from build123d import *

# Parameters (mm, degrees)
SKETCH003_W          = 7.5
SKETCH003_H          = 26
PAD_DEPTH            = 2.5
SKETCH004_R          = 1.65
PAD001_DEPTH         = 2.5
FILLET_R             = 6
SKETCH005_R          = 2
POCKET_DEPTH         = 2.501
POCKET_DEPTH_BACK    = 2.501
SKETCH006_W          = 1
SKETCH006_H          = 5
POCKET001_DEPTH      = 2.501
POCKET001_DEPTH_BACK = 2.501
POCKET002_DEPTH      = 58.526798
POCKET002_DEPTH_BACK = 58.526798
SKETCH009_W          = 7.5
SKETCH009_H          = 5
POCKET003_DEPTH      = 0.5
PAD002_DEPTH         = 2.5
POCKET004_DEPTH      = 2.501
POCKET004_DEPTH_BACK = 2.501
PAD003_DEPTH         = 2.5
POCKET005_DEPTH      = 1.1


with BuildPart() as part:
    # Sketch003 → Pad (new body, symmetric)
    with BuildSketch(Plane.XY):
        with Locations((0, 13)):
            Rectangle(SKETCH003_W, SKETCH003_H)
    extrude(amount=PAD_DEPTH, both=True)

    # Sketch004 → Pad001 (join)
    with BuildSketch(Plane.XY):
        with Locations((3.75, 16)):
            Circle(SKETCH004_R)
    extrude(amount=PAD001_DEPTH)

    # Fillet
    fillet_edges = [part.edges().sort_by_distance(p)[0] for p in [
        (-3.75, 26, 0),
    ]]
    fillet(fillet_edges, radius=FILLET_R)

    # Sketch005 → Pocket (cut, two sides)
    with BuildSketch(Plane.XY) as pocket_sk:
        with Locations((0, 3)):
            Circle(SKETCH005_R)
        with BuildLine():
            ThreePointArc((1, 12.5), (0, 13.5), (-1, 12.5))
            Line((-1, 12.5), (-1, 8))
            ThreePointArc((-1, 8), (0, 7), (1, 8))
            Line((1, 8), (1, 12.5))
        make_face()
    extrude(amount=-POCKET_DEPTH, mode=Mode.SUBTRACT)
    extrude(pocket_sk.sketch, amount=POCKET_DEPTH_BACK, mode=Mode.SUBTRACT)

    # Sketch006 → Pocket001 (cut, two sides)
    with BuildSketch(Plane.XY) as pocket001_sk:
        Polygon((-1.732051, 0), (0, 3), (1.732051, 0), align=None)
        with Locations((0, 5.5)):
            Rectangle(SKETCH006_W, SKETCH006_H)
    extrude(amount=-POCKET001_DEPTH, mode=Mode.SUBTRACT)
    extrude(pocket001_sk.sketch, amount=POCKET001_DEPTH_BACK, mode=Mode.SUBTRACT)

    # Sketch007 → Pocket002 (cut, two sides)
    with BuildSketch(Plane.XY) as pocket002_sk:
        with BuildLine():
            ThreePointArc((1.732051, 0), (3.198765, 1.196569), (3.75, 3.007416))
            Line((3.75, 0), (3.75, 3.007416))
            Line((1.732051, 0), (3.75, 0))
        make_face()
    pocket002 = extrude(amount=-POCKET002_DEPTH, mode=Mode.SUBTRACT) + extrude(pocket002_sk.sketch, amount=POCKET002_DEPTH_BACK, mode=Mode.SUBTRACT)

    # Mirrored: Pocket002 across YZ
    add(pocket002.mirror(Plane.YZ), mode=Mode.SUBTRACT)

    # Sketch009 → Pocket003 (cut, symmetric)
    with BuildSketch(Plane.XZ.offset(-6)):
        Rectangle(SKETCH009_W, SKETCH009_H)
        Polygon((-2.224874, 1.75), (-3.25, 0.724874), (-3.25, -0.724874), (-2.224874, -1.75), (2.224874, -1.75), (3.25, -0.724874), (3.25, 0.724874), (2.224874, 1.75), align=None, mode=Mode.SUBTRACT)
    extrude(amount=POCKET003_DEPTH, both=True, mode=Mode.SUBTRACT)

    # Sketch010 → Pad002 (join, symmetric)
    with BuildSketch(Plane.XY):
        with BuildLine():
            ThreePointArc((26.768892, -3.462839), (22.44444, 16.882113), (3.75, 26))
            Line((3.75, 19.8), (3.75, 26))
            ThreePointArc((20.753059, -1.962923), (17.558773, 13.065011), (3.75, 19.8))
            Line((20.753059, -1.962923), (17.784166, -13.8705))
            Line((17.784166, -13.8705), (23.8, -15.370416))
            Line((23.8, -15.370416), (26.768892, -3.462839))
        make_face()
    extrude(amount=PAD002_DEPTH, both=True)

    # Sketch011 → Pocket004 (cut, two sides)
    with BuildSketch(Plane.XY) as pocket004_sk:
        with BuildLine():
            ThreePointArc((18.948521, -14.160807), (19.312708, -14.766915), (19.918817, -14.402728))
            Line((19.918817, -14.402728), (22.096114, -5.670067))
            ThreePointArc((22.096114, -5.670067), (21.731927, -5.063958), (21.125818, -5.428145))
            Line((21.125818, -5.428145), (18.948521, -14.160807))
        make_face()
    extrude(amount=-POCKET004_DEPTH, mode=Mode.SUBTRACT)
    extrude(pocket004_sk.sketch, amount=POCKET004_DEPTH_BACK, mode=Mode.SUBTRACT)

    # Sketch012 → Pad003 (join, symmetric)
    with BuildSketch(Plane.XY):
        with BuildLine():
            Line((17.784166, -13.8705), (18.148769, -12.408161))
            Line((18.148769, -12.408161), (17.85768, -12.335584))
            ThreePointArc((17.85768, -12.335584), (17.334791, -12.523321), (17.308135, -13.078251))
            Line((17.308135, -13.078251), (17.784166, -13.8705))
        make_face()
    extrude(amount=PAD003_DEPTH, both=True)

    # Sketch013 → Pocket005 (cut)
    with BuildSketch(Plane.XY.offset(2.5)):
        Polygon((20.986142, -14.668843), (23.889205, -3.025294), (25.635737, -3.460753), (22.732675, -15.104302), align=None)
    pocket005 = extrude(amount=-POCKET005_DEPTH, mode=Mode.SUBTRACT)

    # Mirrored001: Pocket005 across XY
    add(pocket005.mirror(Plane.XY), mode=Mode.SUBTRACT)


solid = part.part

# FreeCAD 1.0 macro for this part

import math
import FreeCAD as App
import Part
import Sketcher
Q = App.Units.Quantity


def edges_at(feature, points):
    """Names of the edges that pass closest to the given points."""
    edges = feature.Shape.Edges
    near = lambda p: min(range(len(edges)), key=lambda i: edges[i].distToShape(Part.Vertex(*p))[0])
    return sorted({f"Edge{near(p) + 1}" for p in points})

doc = App.newDocument("Part")
body = doc.addObject("PartDesign::Body", "Body")

sketch1 = body.newObject("Sketcher::SketchObject", "Sketch")
sketch1.AttachmentSupport = (doc.getObject("XY_Plane"), [""])
sketch1.MapMode = "FlatFace"
sketch1.addGeometry(Part.LineSegment(App.Vector(-4, 26, 0), App.Vector(-4, 0, 0)), False)
sketch1.addGeometry(Part.LineSegment(App.Vector(-4, 0, 0), App.Vector(4, 0, 0)), False)
sketch1.addGeometry(Part.LineSegment(App.Vector(4, 0, 0), App.Vector(4, 26, 0)), False)
sketch1.addGeometry(Part.LineSegment(App.Vector(4, 26, 0), App.Vector(-4, 26, 0)), False)
sketch1.addConstraint(Sketcher.Constraint("Coincident", 0, 2, 1, 1))
sketch1.addConstraint(Sketcher.Constraint("Coincident", 1, 2, 2, 1))
sketch1.addConstraint(Sketcher.Constraint("Coincident", 2, 2, 3, 1))
sketch1.addConstraint(Sketcher.Constraint("Coincident", 3, 2, 0, 1))
sketch1.addConstraint(Sketcher.Constraint("Vertical", 0))
sketch1.addConstraint(Sketcher.Constraint("Horizontal", 1))
sketch1.addConstraint(Sketcher.Constraint("Vertical", 2))
sketch1.addConstraint(Sketcher.Constraint("Horizontal", 3))
sketch1.addConstraint(Sketcher.Constraint("Symmetric", 0, 2, 1, 2, -1, 1))
sketch1.addConstraint(Sketcher.Constraint("DistanceY", 0, 2, 0, 1, Q("26 mm")))
sketch1.addConstraint(Sketcher.Constraint("DistanceX", 1, 1, 1, 2, Q("7.5 mm")))
pad1 = body.newObject("PartDesign::Pad", "Pad")
pad1.Profile = sketch1
pad1.Length = 5
pad1.Midplane = True

sketch2 = body.newObject("Sketcher::SketchObject", "Sketch001")
sketch2.AttachmentSupport = (doc.getObject("XY_Plane"), [""])
sketch2.MapMode = "FlatFace"
sketch2.addGeometry(Part.Circle(App.Vector(3.8, 16, 0), App.Vector(0, 0, 1), 1.6), False)
sketch2.addConstraint(Sketcher.Constraint("Diameter", 0, Q("3.3 mm")))
sketch2.addConstraint(Sketcher.Constraint("DistanceY", -1, 1, 0, 3, Q("16 mm")))
sketch2.addConstraint(Sketcher.Constraint("DistanceX", -1, 1, 0, 3, Q("3.75 mm")))
pad2 = body.newObject("PartDesign::Pad", "Pad001")
pad2.Profile = sketch2
pad2.Length = 2.5
doc.recompute()

fillet = body.newObject("PartDesign::Fillet", "Fillet")
fillet.Base = (pad2, edges_at(pad2, [(-3.75, 26, 0)]))
fillet.Radius = 6

sketch3 = body.newObject("Sketcher::SketchObject", "Sketch002")
sketch3.AttachmentSupport = (doc.getObject("XY_Plane"), [""])
sketch3.MapMode = "FlatFace"
sketch3.addGeometry(Part.Circle(App.Vector(0, 3, 0), App.Vector(0, 0, 1), 2), False)
sketch3.addGeometry(Part.ArcOfCircle(Part.Circle(App.Vector(0, 12.5, 0), App.Vector(0, 0, 1), 1), math.radians(0), math.radians(180)), False)
sketch3.addGeometry(Part.LineSegment(App.Vector(-1, 12.5, 0), App.Vector(-1, 8, 0)), False)
sketch3.addGeometry(Part.ArcOfCircle(Part.Circle(App.Vector(0, 8, 0), App.Vector(0, 0, 1), 1), math.radians(180), math.radians(360)), False)
sketch3.addGeometry(Part.LineSegment(App.Vector(1, 8, 0), App.Vector(1, 12.5, 0)), False)
sketch3.addConstraint(Sketcher.Constraint("Tangent", 1, 2, 2, 1))
sketch3.addConstraint(Sketcher.Constraint("Tangent", 2, 2, 3, 1))
sketch3.addConstraint(Sketcher.Constraint("Tangent", 3, 2, 4, 1))
sketch3.addConstraint(Sketcher.Constraint("Tangent", 4, 2, 1, 1))
sketch3.addConstraint(Sketcher.Constraint("Vertical", 2))
sketch3.addConstraint(Sketcher.Constraint("Vertical", 4))
sketch3.addConstraint(Sketcher.Constraint("PointOnObject", 0, 3, -2))
sketch3.addConstraint(Sketcher.Constraint("PointOnObject", 1, 3, -2))
sketch3.addConstraint(Sketcher.Constraint("Diameter", 0, Q("4 mm")))
sketch3.addConstraint(Sketcher.Constraint("Radius", 1, Q("1 mm")))
sketch3.addConstraint(Sketcher.Constraint("DistanceY", 2, 2, 2, 1, Q("4.5 mm")))
sketch3.addConstraint(Sketcher.Constraint("DistanceY", -1, 1, 0, 3, Q("3 mm")))
sketch3.addConstraint(Sketcher.Constraint("DistanceY", -1, 1, 3, 3, Q("8 mm")))
pocket1 = body.newObject("PartDesign::Pocket", "Pocket")
pocket1.Profile = sketch3
pocket1.Type = "ThroughAll"
pocket1.Midplane = True

sketch4 = body.newObject("Sketcher::SketchObject", "Sketch003")
sketch4.AttachmentSupport = (doc.getObject("XY_Plane"), [""])
sketch4.MapMode = "FlatFace"
sketch4.addGeometry(Part.LineSegment(App.Vector(0, 3, 0), App.Vector(-1.7, 0, 0)), False)
sketch4.addGeometry(Part.LineSegment(App.Vector(-1.7, 0, 0), App.Vector(1.7, 0, 0)), False)
sketch4.addGeometry(Part.LineSegment(App.Vector(1.7, 0, 0), App.Vector(0, 3, 0)), False)
sketch4.addGeometry(Part.LineSegment(App.Vector(-0.5, 8, 0), App.Vector(-0.5, 3, 0)), False)
sketch4.addGeometry(Part.LineSegment(App.Vector(-0.5, 3, 0), App.Vector(0, 3, 0)), False)
sketch4.addGeometry(Part.LineSegment(App.Vector(0, 3, 0), App.Vector(0.5, 3, 0)), False)
sketch4.addGeometry(Part.LineSegment(App.Vector(0.5, 3, 0), App.Vector(0.5, 8, 0)), False)
sketch4.addGeometry(Part.LineSegment(App.Vector(0.5, 8, 0), App.Vector(-0.5, 8, 0)), False)
sketch4.addConstraint(Sketcher.Constraint("Coincident", 0, 2, 1, 1))
sketch4.addConstraint(Sketcher.Constraint("Coincident", 1, 2, 2, 1))
sketch4.addConstraint(Sketcher.Constraint("Coincident", 2, 2, 0, 1))
sketch4.addConstraint(Sketcher.Constraint("Coincident", 3, 2, 4, 1))
sketch4.addConstraint(Sketcher.Constraint("Coincident", 4, 2, 5, 1))
sketch4.addConstraint(Sketcher.Constraint("Coincident", 5, 2, 6, 1))
sketch4.addConstraint(Sketcher.Constraint("Coincident", 6, 2, 7, 1))
sketch4.addConstraint(Sketcher.Constraint("Coincident", 7, 2, 3, 1))
sketch4.addConstraint(Sketcher.Constraint("Horizontal", 1))
sketch4.addConstraint(Sketcher.Constraint("Vertical", 3))
sketch4.addConstraint(Sketcher.Constraint("Horizontal", 4))
sketch4.addConstraint(Sketcher.Constraint("Horizontal", 5))
sketch4.addConstraint(Sketcher.Constraint("Vertical", 6))
sketch4.addConstraint(Sketcher.Constraint("Horizontal", 7))
sketch4.addConstraint(Sketcher.Constraint("Coincident", 4, 2, 2, 2))
sketch4.addConstraint(Sketcher.Constraint("Symmetric", 0, 2, 1, 2, -1, 1))
sketch4.addConstraint(Sketcher.Constraint("PointOnObject", 2, 2, -2))
sketch4.addConstraint(Sketcher.Constraint("Equal", 4, 5))
sketch4.addConstraint(Sketcher.Constraint("DistanceX", 7, 2, 7, 1, Q("1 mm")))
sketch4.addConstraint(Sketcher.Constraint("DistanceY", 3, 2, 3, 1, Q("5 mm")))
sketch4.addConstraint(Sketcher.Constraint("Angle", 0, Q("-120.000003 deg")))
sketch4.addConstraint(Sketcher.Constraint("DistanceY", -1, 1, 2, 2, Q("3 mm")))
pocket2 = body.newObject("PartDesign::Pocket", "Pocket001")
pocket2.Profile = sketch4
pocket2.Type = "ThroughAll"
pocket2.Midplane = True

sketch5 = body.newObject("Sketcher::SketchObject", "Sketch004")
sketch5.AttachmentSupport = (doc.getObject("XY_Plane"), [""])
sketch5.MapMode = "FlatFace"
sketch5.addGeometry(Part.ArcOfCircle(Part.Circle(App.Vector(0.5, 3, 0), App.Vector(0, 0, 1), 3.3), math.radians(-68), math.radians(0)), False)
sketch5.addGeometry(Part.LineSegment(App.Vector(1.7, 0, 0), App.Vector(3.8, 0, 0)), False)
sketch5.addGeometry(Part.LineSegment(App.Vector(3.8, 0, 0), App.Vector(3.8, 3, 0)), False)
sketch5.addConstraint(Sketcher.Constraint("Coincident", 0, 1, 1, 1))
sketch5.addConstraint(Sketcher.Constraint("Coincident", 1, 2, 2, 1))
sketch5.addConstraint(Sketcher.Constraint("Tangent", 2, 2, 0, 2))
sketch5.addConstraint(Sketcher.Constraint("Horizontal", 1))
sketch5.addConstraint(Sketcher.Constraint("Vertical", 2))
sketch5.addConstraint(Sketcher.Constraint("PointOnObject", 0, 1, -1))
sketch5.addConstraint(Sketcher.Constraint("Radius", 0, Q("3.250001 mm")))
sketch5.addConstraint(Sketcher.Constraint("DistanceX", -1, 1, 0, 3, Q("0.499999 mm")))
sketch5.addConstraint(Sketcher.Constraint("DistanceX", 1, 1, 1, 2, Q("2.017949 mm")))
pocket3 = body.newObject("PartDesign::Pocket", "Pocket002")
pocket3.Profile = sketch5
pocket3.Type = "ThroughAll"
pocket3.Midplane = True
doc.recompute()

mirrored = body.newObject("PartDesign::Mirrored", "Mirrored")
mirrored.Originals = [pocket3]
mirrored.MirrorPlane = (doc.getObject("YZ_Plane"), [""])
body.Tip = mirrored

sketch6 = body.newObject("Sketcher::SketchObject", "Sketch005")
sketch6.AttachmentSupport = (doc.getObject("XZ_Plane"), [""])
sketch6.MapMode = "FlatFace"
sketch6.AttachmentOffset = App.Placement(App.Vector(0, 0, -6), App.Rotation())
sketch6.addGeometry(Part.LineSegment(App.Vector(-3.8, 2.5, 0), App.Vector(-3.8, -2.5, 0)), False)
sketch6.addGeometry(Part.LineSegment(App.Vector(-3.8, -2.5, 0), App.Vector(3.8, -2.5, 0)), False)
sketch6.addGeometry(Part.LineSegment(App.Vector(3.8, -2.5, 0), App.Vector(3.8, 2.5, 0)), False)
sketch6.addGeometry(Part.LineSegment(App.Vector(3.8, 2.5, 0), App.Vector(-3.8, 2.5, 0)), False)
sketch6.addGeometry(Part.LineSegment(App.Vector(-3.2, 0.7, 0), App.Vector(-2.2, 1.8, 0)), False)
sketch6.addGeometry(Part.LineSegment(App.Vector(-2.2, 1.8, 0), App.Vector(2.2, 1.8, 0)), False)
sketch6.addGeometry(Part.LineSegment(App.Vector(2.2, 1.8, 0), App.Vector(3.2, 0.7, 0)), False)
sketch6.addGeometry(Part.LineSegment(App.Vector(3.2, 0.7, 0), App.Vector(3.2, -0.7, 0)), False)
sketch6.addGeometry(Part.LineSegment(App.Vector(3.2, -0.7, 0), App.Vector(2.2, -1.8, 0)), False)
sketch6.addGeometry(Part.LineSegment(App.Vector(2.2, -1.8, 0), App.Vector(-2.2, -1.8, 0)), False)
sketch6.addGeometry(Part.LineSegment(App.Vector(-2.2, -1.8, 0), App.Vector(-3.2, -0.7, 0)), False)
sketch6.addGeometry(Part.LineSegment(App.Vector(-3.2, -0.7, 0), App.Vector(-3.2, 0.7, 0)), False)
sketch6.addConstraint(Sketcher.Constraint("Coincident", 0, 2, 1, 1))
sketch6.addConstraint(Sketcher.Constraint("Coincident", 1, 2, 2, 1))
sketch6.addConstraint(Sketcher.Constraint("Coincident", 2, 2, 3, 1))
sketch6.addConstraint(Sketcher.Constraint("Coincident", 3, 2, 0, 1))
sketch6.addConstraint(Sketcher.Constraint("Coincident", 4, 2, 5, 1))
sketch6.addConstraint(Sketcher.Constraint("Coincident", 5, 2, 6, 1))
sketch6.addConstraint(Sketcher.Constraint("Coincident", 6, 2, 7, 1))
sketch6.addConstraint(Sketcher.Constraint("Coincident", 7, 2, 8, 1))
sketch6.addConstraint(Sketcher.Constraint("Coincident", 8, 2, 9, 1))
sketch6.addConstraint(Sketcher.Constraint("Coincident", 9, 2, 10, 1))
sketch6.addConstraint(Sketcher.Constraint("Coincident", 10, 2, 11, 1))
sketch6.addConstraint(Sketcher.Constraint("Coincident", 11, 2, 4, 1))
sketch6.addConstraint(Sketcher.Constraint("Vertical", 0))
sketch6.addConstraint(Sketcher.Constraint("Horizontal", 1))
sketch6.addConstraint(Sketcher.Constraint("Vertical", 2))
sketch6.addConstraint(Sketcher.Constraint("Horizontal", 3))
sketch6.addConstraint(Sketcher.Constraint("Horizontal", 5))
sketch6.addConstraint(Sketcher.Constraint("Vertical", 7))
sketch6.addConstraint(Sketcher.Constraint("Horizontal", 9))
sketch6.addConstraint(Sketcher.Constraint("Vertical", 11))
sketch6.addConstraint(Sketcher.Constraint("Symmetric", 0, 2, 2, 2, -1, 1))
sketch6.addConstraint(Sketcher.Constraint("Symmetric", 4, 2, 8, 2, -1, 1))
sketch6.addConstraint(Sketcher.Constraint("Symmetric", 6, 2, 10, 2, -1, 1))
sketch6.addConstraint(Sketcher.Constraint("Perpendicular", 4, 6))
sketch6.addConstraint(Sketcher.Constraint("Perpendicular", 6, 8))
sketch6.addConstraint(Sketcher.Constraint("Perpendicular", 8, 10))
sketch6.addConstraint(Sketcher.Constraint("Horizontal", 7, 2, 10, 2))
sketch6.addConstraint(Sketcher.Constraint("Vertical", 5, 2, 8, 2))
sketch6.addConstraint(Sketcher.Constraint("DistanceY", 0, 2, 0, 1, Q("5 mm")))
sketch6.addConstraint(Sketcher.Constraint("DistanceX", 1, 1, 1, 2, Q("7.5 mm")))
sketch6.addConstraint(Sketcher.Constraint("DistanceX", 3, 2, 6, 2, Q("7 mm")))
sketch6.addConstraint(Sketcher.Constraint("DistanceY", 8, 2, 5, 2, Q("3.5 mm")))
sketch6.addConstraint(Sketcher.Constraint("DistanceX", 5, 1, 5, 2, Q("4.449748 mm")))
pocket4 = body.newObject("PartDesign::Pocket", "Pocket003")
pocket4.Profile = sketch6
pocket4.Length = 1
pocket4.Midplane = True

sketch7 = body.newObject("Sketcher::SketchObject", "Sketch006")
sketch7.AttachmentSupport = (doc.getObject("XY_Plane"), [""])
sketch7.MapMode = "FlatFace"
sketch7.addGeometry(Part.ArcOfCircle(Part.Circle(App.Vector(4, 2, 0), App.Vector(0, 0, 1), 24), math.radians(-14), math.radians(90)), False)
sketch7.addGeometry(Part.LineSegment(App.Vector(4, 26, 0), App.Vector(4, 20, 0)), False)
sketch7.addGeometry(Part.ArcOfCircle(Part.Circle(App.Vector(4, 2, 0), App.Vector(0, 0, 1), 18), math.radians(-14), math.radians(90)), False)
sketch7.addGeometry(Part.LineSegment(App.Vector(21, -2, 0), App.Vector(18, -14, 0)), False)
sketch7.addGeometry(Part.LineSegment(App.Vector(18, -14, 0), App.Vector(24, -15, 0)), False)
sketch7.addGeometry(Part.LineSegment(App.Vector(24, -15, 0), App.Vector(27, -3, 0)), False)
sketch7.addConstraint(Sketcher.Constraint("Coincident", 0, 2, 1, 1))
sketch7.addConstraint(Sketcher.Constraint("Coincident", 1, 2, 2, 2))
sketch7.addConstraint(Sketcher.Constraint("Tangent", 2, 1, 3, 1))
sketch7.addConstraint(Sketcher.Constraint("Coincident", 3, 2, 4, 1))
sketch7.addConstraint(Sketcher.Constraint("Coincident", 4, 2, 5, 1))
sketch7.addConstraint(Sketcher.Constraint("Tangent", 5, 2, 0, 1))
sketch7.addConstraint(Sketcher.Constraint("Vertical", 1))
sketch7.addConstraint(Sketcher.Constraint("Coincident", 2, 3, 0, 3))
sketch7.addConstraint(Sketcher.Constraint("Perpendicular", 3, 4))
sketch7.addConstraint(Sketcher.Constraint("Perpendicular", 4, 5))
sketch7.addConstraint(Sketcher.Constraint("Vertical", 2, 3, 0, 2))
sketch7.addConstraint(Sketcher.Constraint("Angle", 3, Q("-104.000003 deg")))
sketch7.addConstraint(Sketcher.Constraint("DistanceY", 1, 2, 1, 1, Q("6.2 mm")))
sketch7.addConstraint(Sketcher.Constraint("DistanceY", -1, 1, 0, 2, Q("26 mm")))
sketch7.addConstraint(Sketcher.Constraint("DistanceX", -1, 1, 4, 2, Q("23.8 mm")))
sketch7.addConstraint(Sketcher.Constraint("DistanceX", -1, 1, 0, 3, Q("3.750001 mm")))
sketch7.addConstraint(Sketcher.Constraint("Radius", 0, Q("23.723583 mm")))
pad3 = body.newObject("PartDesign::Pad", "Pad002")
pad3.Profile = sketch7
pad3.Length = 5
pad3.Midplane = True

sketch8 = body.newObject("Sketcher::SketchObject", "Sketch007")
sketch8.AttachmentSupport = (doc.getObject("XY_Plane"), [""])
sketch8.MapMode = "FlatFace"
sketch8.addGeometry(Part.ArcOfCircle(Part.Circle(App.Vector(19.4, -14.3, 0), App.Vector(0, 0, 1), 0.5), math.radians(166), math.radians(346)), False)
sketch8.addGeometry(Part.LineSegment(App.Vector(19.9, -14.4, 0), App.Vector(22.1, -5.7, 0)), False)
sketch8.addGeometry(Part.ArcOfCircle(Part.Circle(App.Vector(21.6, -5.5, 0), App.Vector(0, 0, 1), 0.5), math.radians(-14), math.radians(166)), False)
sketch8.addGeometry(Part.LineSegment(App.Vector(21.1, -5.4, 0), App.Vector(18.9, -14.2, 0)), False)
sketch8.addConstraint(Sketcher.Constraint("Tangent", 0, 2, 1, 1))
sketch8.addConstraint(Sketcher.Constraint("Tangent", 1, 2, 2, 1))
sketch8.addConstraint(Sketcher.Constraint("Tangent", 2, 2, 3, 1))
sketch8.addConstraint(Sketcher.Constraint("Tangent", 3, 2, 0, 1))
sketch8.addConstraint(Sketcher.Constraint("Equal", 0, 2))
sketch8.addConstraint(Sketcher.Constraint("Radius", 0, Q("0.5 mm")))
sketch8.addConstraint(Sketcher.Constraint("Angle", 1, Q("76 deg")))
sketch8.addConstraint(Sketcher.Constraint("Distance", 1, Q("8.999999 mm")))
sketch8.addConstraint(Sketcher.Constraint("DistanceX", -1, 1, 0, 3, Q("19.433669 mm")))
sketch8.addConstraint(Sketcher.Constraint("DistanceY", 0, 3, -1, 1, Q("14.281767 mm")))
pocket5 = body.newObject("PartDesign::Pocket", "Pocket004")
pocket5.Profile = sketch8
pocket5.Type = "ThroughAll"
pocket5.Midplane = True

sketch9 = body.newObject("Sketcher::SketchObject", "Sketch008")
sketch9.AttachmentSupport = (doc.getObject("XY_Plane"), [""])
sketch9.MapMode = "FlatFace"
sketch9.addGeometry(Part.LineSegment(App.Vector(17.78, -13.87, 0), App.Vector(18.15, -12.41, 0)), False)
sketch9.addGeometry(Part.LineSegment(App.Vector(18.15, -12.41, 0), App.Vector(17.86, -12.34, 0)), False)
sketch9.addGeometry(Part.ArcOfCircle(Part.Circle(App.Vector(17.74, -12.82, 0), App.Vector(0, 0, 1), 0.5), math.radians(76), math.radians(211)), False)
sketch9.addGeometry(Part.LineSegment(App.Vector(17.31, -13.08, 0), App.Vector(17.78, -13.87, 0)), False)
sketch9.addConstraint(Sketcher.Constraint("Coincident", 0, 2, 1, 1))
sketch9.addConstraint(Sketcher.Constraint("Coincident", 1, 2, 2, 1))
sketch9.addConstraint(Sketcher.Constraint("Coincident", 2, 2, 3, 1))
sketch9.addConstraint(Sketcher.Constraint("Coincident", 3, 2, 0, 1))
sketch9.addConstraint(Sketcher.Constraint("Perpendicular", 0, 1))
sketch9.addConstraint(Sketcher.Constraint("Radius", 2, Q("0.500001 mm")))
sketch9.addConstraint(Sketcher.Constraint("Angle", 3, Q("-59.000012 deg")))
sketch9.addConstraint(Sketcher.Constraint("Distance", 1, Q("0.3 mm")))
sketch9.addConstraint(Sketcher.Constraint("DistanceY", 3, 2, -1, 1, Q("13.8705 mm")))
sketch9.addConstraint(Sketcher.Constraint("DistanceX", -1, 1, 2, 3, Q("17.73672 mm")))
sketch9.addConstraint(Sketcher.Constraint("DistanceX", -1, 1, 0, 2, Q("18.148769 mm")))
sketch9.addConstraint(Sketcher.Constraint("DistanceY", 0, 2, -1, 1, Q("12.408161 mm")))
sketch9.addConstraint(Sketcher.Constraint("DistanceY", 2, 2, -1, 1, Q("13.078251 mm")))
pad4 = body.newObject("PartDesign::Pad", "Pad003")
pad4.Profile = sketch9
pad4.Length = 5
pad4.Midplane = True

sketch10 = body.newObject("Sketcher::SketchObject", "Sketch009")
sketch10.AttachmentSupport = (doc.getObject("XY_Plane"), [""])
sketch10.MapMode = "FlatFace"
sketch10.AttachmentOffset = App.Placement(App.Vector(0, 0, 2.5), App.Rotation())
sketch10.addGeometry(Part.LineSegment(App.Vector(23.9, -3, 0), App.Vector(21, -14.7, 0)), False)
sketch10.addGeometry(Part.LineSegment(App.Vector(21, -14.7, 0), App.Vector(22.7, -15.1, 0)), False)
sketch10.addGeometry(Part.LineSegment(App.Vector(22.7, -15.1, 0), App.Vector(25.6, -3.5, 0)), False)
sketch10.addGeometry(Part.LineSegment(App.Vector(25.6, -3.5, 0), App.Vector(23.9, -3, 0)), False)
sketch10.addConstraint(Sketcher.Constraint("Coincident", 0, 2, 1, 1))
sketch10.addConstraint(Sketcher.Constraint("Coincident", 1, 2, 2, 1))
sketch10.addConstraint(Sketcher.Constraint("Coincident", 2, 2, 3, 1))
sketch10.addConstraint(Sketcher.Constraint("Coincident", 3, 2, 0, 1))
sketch10.addConstraint(Sketcher.Constraint("Perpendicular", 0, 1))
sketch10.addConstraint(Sketcher.Constraint("Perpendicular", 1, 2))
sketch10.addConstraint(Sketcher.Constraint("Perpendicular", 2, 3))
sketch10.addConstraint(Sketcher.Constraint("Angle", 0, Q("-104.000001 deg")))
sketch10.addConstraint(Sketcher.Constraint("Distance", 0, Q("12 mm")))
sketch10.addConstraint(Sketcher.Constraint("Distance", 1, Q("1.800001 mm")))
sketch10.addConstraint(Sketcher.Constraint("DistanceX", -1, 1, 0, 2, Q("20.986142 mm")))
sketch10.addConstraint(Sketcher.Constraint("DistanceY", 0, 2, -1, 1, Q("14.668843 mm")))
pocket6 = body.newObject("PartDesign::Pocket", "Pocket005")
pocket6.Profile = sketch10
pocket6.Length = 1.1
doc.recompute()

mirrored2 = body.newObject("PartDesign::Mirrored", "Mirrored001")
mirrored2.Originals = [pocket6]
mirrored2.MirrorPlane = (doc.getObject("XY_Plane"), [""])
body.Tip = mirrored2

doc.recompute()
